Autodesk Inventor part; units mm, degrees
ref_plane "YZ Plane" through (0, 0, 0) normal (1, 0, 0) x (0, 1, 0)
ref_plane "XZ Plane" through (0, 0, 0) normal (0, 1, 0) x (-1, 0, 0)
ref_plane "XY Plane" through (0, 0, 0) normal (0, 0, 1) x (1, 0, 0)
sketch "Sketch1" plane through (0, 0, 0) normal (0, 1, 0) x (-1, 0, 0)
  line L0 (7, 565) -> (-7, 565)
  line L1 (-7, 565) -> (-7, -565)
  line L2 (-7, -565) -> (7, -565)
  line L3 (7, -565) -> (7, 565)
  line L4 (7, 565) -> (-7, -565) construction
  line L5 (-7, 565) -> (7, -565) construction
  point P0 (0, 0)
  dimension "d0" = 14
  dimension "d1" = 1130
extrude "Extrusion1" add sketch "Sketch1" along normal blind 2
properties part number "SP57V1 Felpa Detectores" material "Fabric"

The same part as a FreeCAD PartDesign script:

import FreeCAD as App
import Part
import Sketcher

V = App.Vector
Q = App.Units.Quantity


def add_polygon(sketch, points):
    """Adds a closed chain of lines whose ends are joined by coincident constraints."""
    first, n = sketch.GeometryCount, len(points)
    for a, b in zip(points, points[1:] + points[:1]):
        sketch.addGeometry(Part.LineSegment(App.Vector(*a, 0), App.Vector(*b, 0)), False)
    for i in range(n):
        sketch.addConstraint(Sketcher.Constraint("Coincident", first + i, 2, first + (i + 1) % n, 1))

doc = App.newDocument("Part")
body = doc.addObject("PartDesign::Body", "Body")

# Sketch on XZ plane
sketch1 = body.newObject("Sketcher::SketchObject", "Sketch")
sketch1.AttachmentSupport = (doc.getObject("XZ_Plane"), [""])
sketch1.MapMode = "FlatFace"
add_polygon(sketch1, [(-7, -565), (-7, 565), (7, 565), (7, -565)])  # lines 0-3
sketch1.addConstraint([
    Sketcher.Constraint("Vertical", 0),
    Sketcher.Constraint("Horizontal", 1),
    Sketcher.Constraint("Vertical", 2),
    Sketcher.Constraint("Horizontal", 3),
    Sketcher.Constraint("Symmetric", 0, 2, 2, 2, -1, 1),
    Sketcher.Constraint("DistanceX", 1, 1, 1, 2, Q("14 mm")),
    Sketcher.Constraint("DistanceY", 0, 1, 0, 2, Q("1130 mm")),
])
pad1 = body.newObject("PartDesign::Pad", "Pad")
pad1.Profile = sketch1
pad1.Length = 2
pad1.Reversed = True

doc.recompute()
